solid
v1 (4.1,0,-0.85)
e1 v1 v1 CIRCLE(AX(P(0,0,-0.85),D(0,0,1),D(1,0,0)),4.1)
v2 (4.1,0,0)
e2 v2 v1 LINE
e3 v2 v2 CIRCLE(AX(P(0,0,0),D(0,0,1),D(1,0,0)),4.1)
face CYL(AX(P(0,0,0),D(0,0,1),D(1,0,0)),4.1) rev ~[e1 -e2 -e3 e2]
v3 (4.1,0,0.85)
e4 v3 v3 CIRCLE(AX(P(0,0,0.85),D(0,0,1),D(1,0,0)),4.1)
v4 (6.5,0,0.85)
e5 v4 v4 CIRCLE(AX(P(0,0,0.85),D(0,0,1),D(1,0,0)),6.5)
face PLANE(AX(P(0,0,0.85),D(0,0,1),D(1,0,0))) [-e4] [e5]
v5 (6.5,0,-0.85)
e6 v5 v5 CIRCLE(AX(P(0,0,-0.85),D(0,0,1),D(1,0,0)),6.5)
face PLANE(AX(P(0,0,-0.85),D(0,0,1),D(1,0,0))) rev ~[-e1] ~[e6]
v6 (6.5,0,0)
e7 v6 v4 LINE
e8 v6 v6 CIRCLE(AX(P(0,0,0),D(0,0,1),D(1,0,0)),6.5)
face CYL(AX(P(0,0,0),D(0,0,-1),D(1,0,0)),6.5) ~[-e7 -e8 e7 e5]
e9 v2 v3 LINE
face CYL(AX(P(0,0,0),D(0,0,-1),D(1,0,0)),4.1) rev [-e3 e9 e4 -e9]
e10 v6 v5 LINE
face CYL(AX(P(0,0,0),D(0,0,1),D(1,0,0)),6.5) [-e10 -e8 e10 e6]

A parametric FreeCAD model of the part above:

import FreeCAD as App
import Part
import Sketcher
from FreeCAD import Vector
Q = App.Units.Quantity

doc = App.newDocument("Part")
body = doc.addObject("PartDesign::Body", "Body")

# Sketch on XY plane
sketch1 = body.newObject("Sketcher::SketchObject", "Sketch")
sketch1.AttachmentSupport = (doc.getObject("XY_Plane"), [""])
sketch1.MapMode = "FlatFace"
sketch1.addGeometry([
    Part.Circle(Vector(0, 0, 0), Vector(0, 0, 1), 6.5),
    Part.Circle(Vector(0, 0, 0), Vector(0, 0, 1), 4.1),
], False)
sketch1.addConstraint([
    Sketcher.Constraint("Coincident", 0, 3, -1, 1),
    Sketcher.Constraint("Coincident", 1, 3, -1, 1),
    Sketcher.Constraint("Diameter", 0, Q("13 mm")),
    Sketcher.Constraint("Diameter", 1, Q("8.2 mm")),
])
pad1 = body.newObject("PartDesign::Pad", "Pad")
pad1.Profile = sketch1
pad1.Length = 1.7
pad1.Midplane = True

doc.recompute()
